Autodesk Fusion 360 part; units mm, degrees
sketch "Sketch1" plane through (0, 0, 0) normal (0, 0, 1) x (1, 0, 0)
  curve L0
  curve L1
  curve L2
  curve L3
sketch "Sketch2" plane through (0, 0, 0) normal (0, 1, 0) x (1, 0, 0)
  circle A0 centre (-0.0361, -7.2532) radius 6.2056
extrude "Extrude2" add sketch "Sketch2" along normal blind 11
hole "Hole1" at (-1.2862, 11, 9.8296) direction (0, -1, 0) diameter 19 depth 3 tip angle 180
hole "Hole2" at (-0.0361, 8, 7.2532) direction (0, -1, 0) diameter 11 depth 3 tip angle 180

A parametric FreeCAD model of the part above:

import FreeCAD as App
import Part
import Sketcher
Q = App.Units.Quantity

doc = App.newDocument("Part")
body = doc.addObject("PartDesign::Body", "Body")

# Sketch on XZ plane
sketch1 = body.newObject("Sketcher::SketchObject", "Sketch")
sketch1.AttachmentSupport = (doc.getObject("XZ_Plane"), [""])
sketch1.MapMode = "FlatFace"
sketch1.addGeometry(Part.Circle(App.Vector(0, 7, 0), App.Vector(0, 0, 1), 6), False)
sketch1.addConstraint(Sketcher.Constraint("Diameter", 0, Q("12.4112 mm")))
sketch1.addConstraint(Sketcher.Constraint("DistanceX", 0, 3, -1, 1, Q("0.036 mm")))
sketch1.addConstraint(Sketcher.Constraint("DistanceY", -1, 1, 0, 3, Q("7.2532 mm")))
pad1 = body.newObject("PartDesign::Pad", "Pad")
pad1.Profile = sketch1
pad1.Length = 11
pad1.Reversed = True

# Sketch on XZ plane
sketch2 = body.newObject("Sketcher::SketchObject", "Sketch001")
sketch2.AttachmentSupport = (doc.getObject("XZ_Plane"), [""])
sketch2.MapMode = "FlatFace"
sketch2.AttachmentOffset = App.Placement(App.Vector(0, 0, -11), App.Rotation())
sketch2.addGeometry(Part.Circle(App.Vector(-1, 10, 0), App.Vector(0, 0, 1), 10), False)
sketch2.addConstraint(Sketcher.Constraint("Diameter", 0, Q("19 mm")))
sketch2.addConstraint(Sketcher.Constraint("DistanceX", 0, 3, -1, 1, Q("1.2862 mm")))
sketch2.addConstraint(Sketcher.Constraint("DistanceY", -1, 1, 0, 3, Q("9.8296 mm")))
doc.recompute()
hole = body.newObject("PartDesign::Hole", "Hole")
hole.Profile = sketch2
hole.ThreadType = "None"
hole.Diameter = 19
hole.DepthType = "Dimension"
hole.Depth = 3
hole.DrillPoint = "Flat"
hole.Reversed = True

# Sketch on XZ plane
sketch3 = body.newObject("Sketcher::SketchObject", "Sketch002")
sketch3.AttachmentSupport = (doc.getObject("XZ_Plane"), [""])
sketch3.MapMode = "FlatFace"
sketch3.AttachmentOffset = App.Placement(App.Vector(0, 0, -8), App.Rotation())
sketch3.addGeometry(Part.Circle(App.Vector(0, 7, 0), App.Vector(0, 0, 1), 6), False)
sketch3.addConstraint(Sketcher.Constraint("Diameter", 0, Q("11 mm")))
sketch3.addConstraint(Sketcher.Constraint("DistanceX", 0, 3, -1, 1, Q("0.036 mm")))
sketch3.addConstraint(Sketcher.Constraint("DistanceY", -1, 1, 0, 3, Q("7.2532 mm")))
doc.recompute()
hole2 = body.newObject("PartDesign::Hole", "Hole001")
hole2.Profile = sketch3
hole2.ThreadType = "None"
hole2.Diameter = 11
hole2.DepthType = "Dimension"
hole2.Depth = 3
hole2.DrillPoint = "Flat"
hole2.Reversed = True

doc.recompute()
